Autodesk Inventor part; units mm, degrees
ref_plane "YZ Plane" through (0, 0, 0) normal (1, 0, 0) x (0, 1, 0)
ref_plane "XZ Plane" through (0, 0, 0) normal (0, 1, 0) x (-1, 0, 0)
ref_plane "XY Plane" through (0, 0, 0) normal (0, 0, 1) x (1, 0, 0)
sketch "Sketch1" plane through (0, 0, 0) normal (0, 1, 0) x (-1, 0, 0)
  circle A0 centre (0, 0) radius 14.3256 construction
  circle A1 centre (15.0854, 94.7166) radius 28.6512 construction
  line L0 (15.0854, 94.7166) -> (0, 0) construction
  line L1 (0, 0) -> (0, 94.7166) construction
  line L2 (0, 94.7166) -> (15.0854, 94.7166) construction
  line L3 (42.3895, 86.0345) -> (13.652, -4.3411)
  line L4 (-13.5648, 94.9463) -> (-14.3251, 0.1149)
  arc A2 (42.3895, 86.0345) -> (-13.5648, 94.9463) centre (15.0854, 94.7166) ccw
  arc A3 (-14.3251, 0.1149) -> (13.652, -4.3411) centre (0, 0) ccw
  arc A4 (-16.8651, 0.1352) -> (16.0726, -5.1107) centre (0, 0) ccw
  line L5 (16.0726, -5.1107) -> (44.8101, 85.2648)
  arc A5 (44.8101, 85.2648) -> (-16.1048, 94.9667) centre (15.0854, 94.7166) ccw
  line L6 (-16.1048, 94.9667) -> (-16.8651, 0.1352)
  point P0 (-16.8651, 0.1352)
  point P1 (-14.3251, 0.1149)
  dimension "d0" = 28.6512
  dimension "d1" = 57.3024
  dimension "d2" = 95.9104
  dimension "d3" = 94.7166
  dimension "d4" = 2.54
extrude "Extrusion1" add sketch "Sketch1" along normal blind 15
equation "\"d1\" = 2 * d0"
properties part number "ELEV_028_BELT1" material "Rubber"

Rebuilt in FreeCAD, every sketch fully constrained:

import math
import FreeCAD as App
import Part
import Sketcher

V = App.Vector
Q = App.Units.Quantity

doc = App.newDocument("Part")
params = doc.addObject("Spreadsheet::Sheet", "Params")
for row, (alias, value) in enumerate([
    ("sketch1_radius", "1.128 in"),
    ("sketch1_radius2", "0.564 in"),
    ("pad1_length", "15 mm"),
], start=1):
    params.set(f"A{row}", alias)
    params.set(f"B{row}", "=" + value)
    params.setAlias(f"B{row}", alias)

body = doc.addObject("PartDesign::Body", "Body")

sketch1 = doc.addObject("Sketcher::SketchObject", "Sketch")
body.addObject(sketch1)
sketch1.AttachmentSupport = (doc.XZ_Plane, [""])
sketch1.MapMode = "FlatFace"
sketch1.addGeometry([
    Part.LineSegment(V(16, 95, 0), V(17, 0, 0)),
    Part.ArcOfCircle(Part.Circle(V(0, 0, 0), V(0, 0, 1), 17), math.radians(-162), math.radians(0)),
    Part.LineSegment(V(-16, -5, 0), V(-45, 85, 0)),
    Part.ArcOfCircle(Part.Circle(V(-15, 95, 0), V(0, 0, 1), 31), math.radians(0), math.radians(198)),
    Part.ArcOfCircle(Part.Circle(V(-15, 95, 0), V(0, 0, 1), 29), math.radians(0), math.radians(198)),
    Part.LineSegment(V(-42, 86, 0), V(-14, -4, 0)),
    Part.ArcOfCircle(Part.Circle(V(0, 0, 0), V(0, 0, 1), 14), math.radians(-162), math.radians(0)),
    Part.LineSegment(V(14, 0, 0), V(14, 95, 0)),
], False)
sketch1.addConstraint([
    Sketcher.Constraint("Tangent", 0, 2, 1, 2),
    Sketcher.Constraint("Tangent", 1, 1, 2, 1),
    Sketcher.Constraint("Tangent", 2, 2, 3, 2),
    Sketcher.Constraint("Tangent", 3, 1, 0, 1),
    Sketcher.Constraint("Tangent", 4, 2, 5, 1),
    Sketcher.Constraint("Tangent", 5, 2, 6, 1),
    Sketcher.Constraint("Tangent", 6, 2, 7, 1),
    Sketcher.Constraint("Tangent", 7, 2, 4, 1),
    Sketcher.Constraint("Coincident", 1, 3, -1, 1),
    Sketcher.Constraint("Coincident", 6, 3, -1, 1),
    Sketcher.Constraint("Coincident", 4, 3, 3, 3),
    Sketcher.Constraint("Parallel", 2, 5),
    Sketcher.Constraint("Radius", 4, Q("1.128 in")),
    Sketcher.Constraint("Radius", 6, Q("0.564 in")),
    Sketcher.Constraint("DistanceX", 6, 2, 0, 2, Q("0.1 in")),
    Sketcher.Constraint("DistanceY", -1, 1, 3, 3, Q("3.729 in")),
    Sketcher.Constraint("Angle", 0, Q("-89.5406 deg")),
])
sketch1.setExpression("Constraints[12]", "Params.sketch1_radius")
sketch1.setExpression("Constraints[13]", "Params.sketch1_radius2")
pad1 = doc.addObject("PartDesign::Pad", "Pad")
body.addObject(pad1)
pad1.Profile = sketch1
pad1.setExpression("Length", "Params.pad1_length")
pad1.Reversed = True

doc.recompute()
